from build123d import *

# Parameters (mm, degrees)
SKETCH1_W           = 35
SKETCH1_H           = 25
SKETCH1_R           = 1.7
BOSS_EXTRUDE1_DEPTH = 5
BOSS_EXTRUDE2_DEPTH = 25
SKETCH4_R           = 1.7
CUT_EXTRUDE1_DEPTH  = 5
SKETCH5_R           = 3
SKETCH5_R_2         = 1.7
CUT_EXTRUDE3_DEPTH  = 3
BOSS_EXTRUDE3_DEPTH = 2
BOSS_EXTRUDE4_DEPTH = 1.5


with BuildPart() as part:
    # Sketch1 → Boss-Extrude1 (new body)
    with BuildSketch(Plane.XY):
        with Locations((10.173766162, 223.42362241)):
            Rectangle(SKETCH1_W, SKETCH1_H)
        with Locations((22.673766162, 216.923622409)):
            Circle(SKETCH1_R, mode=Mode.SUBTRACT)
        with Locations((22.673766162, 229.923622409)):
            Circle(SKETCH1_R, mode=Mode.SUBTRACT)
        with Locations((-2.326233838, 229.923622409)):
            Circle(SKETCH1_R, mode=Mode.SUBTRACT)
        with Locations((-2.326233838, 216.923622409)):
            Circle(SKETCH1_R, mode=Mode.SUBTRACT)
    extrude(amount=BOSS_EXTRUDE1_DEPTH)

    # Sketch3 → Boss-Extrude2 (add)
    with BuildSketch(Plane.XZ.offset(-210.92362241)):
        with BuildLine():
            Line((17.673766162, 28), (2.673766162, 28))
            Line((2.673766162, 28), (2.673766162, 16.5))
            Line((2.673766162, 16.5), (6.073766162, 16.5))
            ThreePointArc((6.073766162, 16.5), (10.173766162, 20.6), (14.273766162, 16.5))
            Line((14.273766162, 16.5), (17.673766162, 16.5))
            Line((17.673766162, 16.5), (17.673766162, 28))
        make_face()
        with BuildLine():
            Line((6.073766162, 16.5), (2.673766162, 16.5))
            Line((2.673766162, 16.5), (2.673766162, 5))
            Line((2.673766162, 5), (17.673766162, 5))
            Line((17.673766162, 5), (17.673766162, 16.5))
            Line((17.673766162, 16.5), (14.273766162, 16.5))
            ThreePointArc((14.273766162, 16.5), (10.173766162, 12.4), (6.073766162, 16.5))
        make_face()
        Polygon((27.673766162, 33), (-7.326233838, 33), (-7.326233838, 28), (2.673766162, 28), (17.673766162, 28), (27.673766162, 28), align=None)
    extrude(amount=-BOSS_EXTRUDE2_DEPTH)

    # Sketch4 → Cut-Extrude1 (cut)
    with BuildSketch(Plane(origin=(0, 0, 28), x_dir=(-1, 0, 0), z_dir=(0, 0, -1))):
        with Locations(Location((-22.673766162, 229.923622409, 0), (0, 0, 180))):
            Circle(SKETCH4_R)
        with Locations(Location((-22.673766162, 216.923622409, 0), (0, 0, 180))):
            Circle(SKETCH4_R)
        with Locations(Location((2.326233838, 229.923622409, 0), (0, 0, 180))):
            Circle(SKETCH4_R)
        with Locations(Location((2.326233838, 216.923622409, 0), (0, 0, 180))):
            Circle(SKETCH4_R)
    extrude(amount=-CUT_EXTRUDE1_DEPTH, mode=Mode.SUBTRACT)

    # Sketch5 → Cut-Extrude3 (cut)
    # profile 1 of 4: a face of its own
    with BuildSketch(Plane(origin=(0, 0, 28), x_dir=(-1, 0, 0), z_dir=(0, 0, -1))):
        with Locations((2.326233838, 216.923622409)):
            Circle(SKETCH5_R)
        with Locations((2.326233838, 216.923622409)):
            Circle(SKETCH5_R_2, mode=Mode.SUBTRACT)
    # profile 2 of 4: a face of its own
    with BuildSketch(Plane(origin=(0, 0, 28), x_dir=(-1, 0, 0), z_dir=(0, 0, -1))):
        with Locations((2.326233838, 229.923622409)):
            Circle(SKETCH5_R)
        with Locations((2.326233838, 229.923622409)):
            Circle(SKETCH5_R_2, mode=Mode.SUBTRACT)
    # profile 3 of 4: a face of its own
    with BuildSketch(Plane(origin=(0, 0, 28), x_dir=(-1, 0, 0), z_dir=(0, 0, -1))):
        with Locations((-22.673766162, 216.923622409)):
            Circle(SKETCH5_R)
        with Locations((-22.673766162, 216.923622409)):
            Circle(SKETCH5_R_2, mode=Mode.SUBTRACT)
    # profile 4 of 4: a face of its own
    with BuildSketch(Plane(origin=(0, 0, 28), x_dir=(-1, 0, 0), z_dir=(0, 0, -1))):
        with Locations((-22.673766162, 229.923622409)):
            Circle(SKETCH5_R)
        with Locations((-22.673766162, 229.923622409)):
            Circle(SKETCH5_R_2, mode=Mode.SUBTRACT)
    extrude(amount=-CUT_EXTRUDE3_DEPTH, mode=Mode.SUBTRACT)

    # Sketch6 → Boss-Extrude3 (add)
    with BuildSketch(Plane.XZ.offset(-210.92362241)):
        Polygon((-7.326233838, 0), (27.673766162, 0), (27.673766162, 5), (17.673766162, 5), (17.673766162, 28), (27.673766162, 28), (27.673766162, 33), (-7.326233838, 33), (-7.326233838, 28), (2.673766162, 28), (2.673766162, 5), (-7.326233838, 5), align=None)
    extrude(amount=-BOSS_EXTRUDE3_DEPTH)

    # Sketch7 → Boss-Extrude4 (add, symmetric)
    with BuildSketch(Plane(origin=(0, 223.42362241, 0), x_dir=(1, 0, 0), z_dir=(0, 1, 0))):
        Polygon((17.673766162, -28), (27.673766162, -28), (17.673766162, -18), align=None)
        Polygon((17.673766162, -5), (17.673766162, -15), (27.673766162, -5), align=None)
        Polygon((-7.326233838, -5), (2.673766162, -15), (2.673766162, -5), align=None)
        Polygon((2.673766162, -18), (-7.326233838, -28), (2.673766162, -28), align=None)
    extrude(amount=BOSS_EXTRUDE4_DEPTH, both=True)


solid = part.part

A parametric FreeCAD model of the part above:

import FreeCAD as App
import Part
import Sketcher
from FreeCAD import Vector

doc = App.newDocument("Part")
body = doc.addObject("PartDesign::Body", "Body")

# Sketch on XY plane
sketch1 = body.newObject("Sketcher::SketchObject", "Sketch")
sketch1.AttachmentSupport = (doc.getObject("XY_Plane"), [""])
sketch1.MapMode = "FlatFace"
sketch1.addGeometry([
    Part.LineSegment(Vector(-7.3, 235.9, 0), Vector(-7.3, 210.9, 0)),  # 0
    Part.LineSegment(Vector(-7.3, 210.9, 0), Vector(27.7, 210.9, 0)),  # 1
    Part.LineSegment(Vector(27.7, 210.9, 0), Vector(27.7, 235.9, 0)),  # 2
    Part.LineSegment(Vector(27.7, 235.9, 0), Vector(-7.3, 235.9, 0)),  # 3
    Part.Circle(Vector(-2.3, 216.9, 0), Vector(0, 0, 1), 1.7),  # 4
    Part.Circle(Vector(22.7, 216.9, 0), Vector(0, 0, 1), 1.7),  # 5
    Part.Circle(Vector(-2.3, 229.9, 0), Vector(0, 0, 1), 1.7),  # 6
    Part.Circle(Vector(22.7, 229.9, 0), Vector(0, 0, 1), 1.7),  # 7
], False)
sketch1.addConstraint([
    Sketcher.Constraint("Coincident", 0, 2, 1, 1),
    Sketcher.Constraint("Coincident", 1, 2, 2, 1),
    Sketcher.Constraint("Coincident", 2, 2, 3, 1),
    Sketcher.Constraint("Coincident", 3, 2, 0, 1),
    Sketcher.Constraint("Vertical", 0),
    Sketcher.Constraint("Horizontal", 1),
    Sketcher.Constraint("Vertical", 2),
    Sketcher.Constraint("Horizontal", 3),
    Sketcher.Constraint("Equal", 4, 5),
    Sketcher.Constraint("Equal", 5, 6),
    Sketcher.Constraint("Equal", 6, 7),
    Sketcher.Constraint("Horizontal", 4, 3, 5, 3),
    Sketcher.Constraint("Horizontal", 6, 3, 7, 3),
    Sketcher.Constraint("Vertical", 4, 3, 6, 3),
    Sketcher.Constraint("Vertical", 5, 3, 7, 3),
    Sketcher.Constraint("Diameter", 4, 3.4),
    Sketcher.Constraint("DistanceX", 1, 1, 1, 2, 35.0),
    Sketcher.Constraint("DistanceY", 0, 2, 0, 1, 25.0),
    Sketcher.Constraint("DistanceX", 4, 3, 5, 3, 25.0),
    Sketcher.Constraint("DistanceY", 4, 3, 6, 3, 13.0),
    Sketcher.Constraint("DistanceX", 0, 2, 4, 3, 5.0),
    Sketcher.Constraint("DistanceY", 0, 2, 4, 3, 6.0),
    Sketcher.Constraint("DistanceX", 4, 3, -1, 1, 2.326234),
    Sketcher.Constraint("DistanceY", -1, 1, 4, 3, 216.923622),
])
pad1 = body.newObject("PartDesign::Pad", "Pad")
pad1.Profile = sketch1
pad1.Length = 5

# Sketch on XZ plane
sketch2 = body.newObject("Sketcher::SketchObject", "Sketch001")
sketch2.AttachmentSupport = (doc.getObject("XZ_Plane"), [""])
sketch2.MapMode = "FlatFace"
sketch2.AttachmentOffset = App.Placement(Vector(0, 0, -210.923622), App.Rotation())
sketch2.addGeometry([
    Part.LineSegment(Vector(2.7, 28, 0), Vector(2.7, 5, 0)),  # 0
    Part.LineSegment(Vector(2.7, 5, 0), Vector(17.7, 5, 0)),  # 1
    Part.LineSegment(Vector(17.7, 5, 0), Vector(17.7, 28, 0)),  # 2
    Part.LineSegment(Vector(17.7, 28, 0), Vector(27.7, 28, 0)),  # 3
    Part.LineSegment(Vector(27.7, 28, 0), Vector(27.7, 33, 0)),  # 4
    Part.LineSegment(Vector(27.7, 33, 0), Vector(-7.3, 33, 0)),  # 5
    Part.LineSegment(Vector(-7.3, 33, 0), Vector(-7.3, 28, 0)),  # 6
    Part.LineSegment(Vector(-7.3, 28, 0), Vector(2.7, 28, 0)),  # 7
    Part.Circle(Vector(10.2, 16.5, 0), Vector(0, 0, 1), 4.1),  # 8
], False)
sketch2.addConstraint([
    Sketcher.Constraint("Coincident", 0, 2, 1, 1),
    Sketcher.Constraint("Coincident", 1, 2, 2, 1),
    Sketcher.Constraint("Coincident", 2, 2, 3, 1),
    Sketcher.Constraint("Coincident", 3, 2, 4, 1),
    Sketcher.Constraint("Coincident", 4, 2, 5, 1),
    Sketcher.Constraint("Coincident", 5, 2, 6, 1),
    Sketcher.Constraint("Coincident", 6, 2, 7, 1),
    Sketcher.Constraint("Coincident", 7, 2, 0, 1),
    Sketcher.Constraint("Vertical", 0),
    Sketcher.Constraint("Horizontal", 1),
    Sketcher.Constraint("Vertical", 2),
    Sketcher.Constraint("Horizontal", 3),
    Sketcher.Constraint("Vertical", 4),
    Sketcher.Constraint("Horizontal", 5),
    Sketcher.Constraint("Vertical", 6),
    Sketcher.Constraint("Horizontal", 7),
    Sketcher.Constraint("Horizontal", 3, 2, 6, 2),
    Sketcher.Constraint("Equal", 3, 7),
    Sketcher.Constraint("Diameter", 8, 8.2),
    Sketcher.Constraint("DistanceX", 1, 1, 1, 2, 15.0),
    Sketcher.Constraint("DistanceX", 3, 1, 3, 2, 10.0),
    Sketcher.Constraint("DistanceY", 0, 2, 0, 1, 23.0),
    Sketcher.Constraint("DistanceY", 4, 1, 4, 2, 5.0),
    Sketcher.Constraint("DistanceY", -1, 1, 0, 2, 5.0),
    Sketcher.Constraint("DistanceY", -1, 1, 8, 3, 16.5),
    Sketcher.Constraint("DistanceX", 0, 2, 8, 3, 7.5),
    Sketcher.Constraint("DistanceX", -1, 1, 8, 3, 10.173766),
])
pad2 = body.newObject("PartDesign::Pad", "Pad001")
pad2.Profile = sketch2
pad2.Length = 25
pad2.Reversed = True

# Sketch on XY plane
sketch3 = body.newObject("Sketcher::SketchObject", "Sketch002")
sketch3.AttachmentSupport = (doc.getObject("XY_Plane"), [""])
sketch3.MapMode = "FlatFace"
sketch3.AttachmentOffset = App.Placement(Vector(0, 0, 28), App.Rotation())
sketch3.addGeometry([
    Part.Circle(Vector(22.7, 229.9, 0), Vector(0, 0, 1), 1.7),
    Part.Circle(Vector(22.7, 216.9, 0), Vector(0, 0, 1), 1.7),
    Part.Circle(Vector(-2.3, 229.9, 0), Vector(0, 0, 1), 1.7),
    Part.Circle(Vector(-2.3, 216.9, 0), Vector(0, 0, 1), 1.7),
], False)
sketch3.addConstraint([
    Sketcher.Constraint("Equal", 0, 1),
    Sketcher.Constraint("Equal", 1, 2),
    Sketcher.Constraint("Equal", 2, 3),
    Sketcher.Constraint("Horizontal", 0, 3, 2, 3),
    Sketcher.Constraint("Horizontal", 1, 3, 3, 3),
    Sketcher.Constraint("Vertical", 0, 3, 1, 3),
    Sketcher.Constraint("Vertical", 2, 3, 3, 3),
    Sketcher.Constraint("Diameter", 0, 3.4),
    Sketcher.Constraint("DistanceY", 1, 3, 0, 3, 13.0),
    Sketcher.Constraint("DistanceX", 2, 3, 0, 3, 25.0),
    Sketcher.Constraint("DistanceX", -1, 1, 0, 3, 22.673766),
    Sketcher.Constraint("DistanceY", -1, 1, 0, 3, 229.923622),
])
pocket1 = body.newObject("PartDesign::Pocket", "Pocket")
pocket1.Profile = sketch3
pocket1.Length = 5
pocket1.Reversed = True

# Sketch on XY plane
sketch4 = body.newObject("Sketcher::SketchObject", "Sketch003")
sketch4.AttachmentSupport = (doc.getObject("XY_Plane"), [""])
sketch4.MapMode = "FlatFace"
sketch4.AttachmentOffset = App.Placement(Vector(0, 0, 28), App.Rotation())
sketch4.addGeometry([
    Part.Circle(Vector(-2.3, 216.9, 0), Vector(0, 0, 1), 3),  # 0
    Part.Circle(Vector(-2.3, 216.9, 0), Vector(0, 0, 1), 1.7),  # 1
    Part.Circle(Vector(-2.3, 229.9, 0), Vector(0, 0, 1), 3),  # 2
    Part.Circle(Vector(-2.3, 229.9, 0), Vector(0, 0, 1), 1.7),  # 3
    Part.Circle(Vector(22.7, 216.9, 0), Vector(0, 0, 1), 3),  # 4
    Part.Circle(Vector(22.7, 216.9, 0), Vector(0, 0, 1), 1.7),  # 5
    Part.Circle(Vector(22.7, 229.9, 0), Vector(0, 0, 1), 3),  # 6
    Part.Circle(Vector(22.7, 229.9, 0), Vector(0, 0, 1), 1.7),  # 7
], False)
sketch4.addConstraint([
    Sketcher.Constraint("Coincident", 1, 3, 0, 3),
    Sketcher.Constraint("Coincident", 3, 3, 2, 3),
    Sketcher.Constraint("Coincident", 5, 3, 4, 3),
    Sketcher.Constraint("Coincident", 7, 3, 6, 3),
    Sketcher.Constraint("Equal", 0, 2),
    Sketcher.Constraint("Equal", 1, 3),
    Sketcher.Constraint("Equal", 2, 4),
    Sketcher.Constraint("Equal", 3, 5),
    Sketcher.Constraint("Equal", 4, 6),
    Sketcher.Constraint("Equal", 5, 7),
    Sketcher.Constraint("Horizontal", 1, 3, 4, 3),
    Sketcher.Constraint("Horizontal", 3, 3, 6, 3),
    Sketcher.Constraint("Vertical", 1, 3, 2, 3),
    Sketcher.Constraint("Vertical", 5, 3, 6, 3),
    Sketcher.Constraint("Diameter", 0, 6.0),
    Sketcher.Constraint("Diameter", 1, 3.4),
    Sketcher.Constraint("DistanceY", 0, 3, 2, 3, 13.0),
    Sketcher.Constraint("DistanceX", 0, 3, 4, 3, 25.0),
    Sketcher.Constraint("DistanceX", 0, 3, -1, 1, 2.326234),
    Sketcher.Constraint("DistanceY", -1, 1, 0, 3, 216.923622),
])
pocket2 = body.newObject("PartDesign::Pocket", "Pocket001")
pocket2.Profile = sketch4
pocket2.Length = 3
pocket2.Reversed = True

# Sketch on XZ plane
sketch5 = body.newObject("Sketcher::SketchObject", "Sketch004")
sketch5.AttachmentSupport = (doc.getObject("XZ_Plane"), [""])
sketch5.MapMode = "FlatFace"
sketch5.AttachmentOffset = App.Placement(Vector(0, 0, -210.923622), App.Rotation())
sketch5.addGeometry([
    Part.LineSegment(Vector(-7, 0, 0), Vector(28, 0, 0)),  # 0
    Part.LineSegment(Vector(28, 0, 0), Vector(28, 5, 0)),  # 1
    Part.LineSegment(Vector(28, 5, 0), Vector(18, 5, 0)),  # 2
    Part.LineSegment(Vector(18, 5, 0), Vector(18, 28, 0)),  # 3
    Part.LineSegment(Vector(18, 28, 0), Vector(28, 28, 0)),  # 4
    Part.LineSegment(Vector(28, 28, 0), Vector(28, 33, 0)),  # 5
    Part.LineSegment(Vector(28, 33, 0), Vector(-7, 33, 0)),  # 6
    Part.LineSegment(Vector(-7, 33, 0), Vector(-7, 28, 0)),  # 7
    Part.LineSegment(Vector(-7, 28, 0), Vector(3, 28, 0)),  # 8
    Part.LineSegment(Vector(3, 28, 0), Vector(3, 5, 0)),  # 9
    Part.LineSegment(Vector(3, 5, 0), Vector(-7, 5, 0)),  # 10
    Part.LineSegment(Vector(-7, 5, 0), Vector(-7, 0, 0)),  # 11
], False)
sketch5.addConstraint([
    Sketcher.Constraint("Coincident", 0, 2, 1, 1),
    Sketcher.Constraint("Coincident", 1, 2, 2, 1),
    Sketcher.Constraint("Coincident", 2, 2, 3, 1),
    Sketcher.Constraint("Coincident", 3, 2, 4, 1),
    Sketcher.Constraint("Coincident", 4, 2, 5, 1),
    Sketcher.Constraint("Coincident", 5, 2, 6, 1),
    Sketcher.Constraint("Coincident", 6, 2, 7, 1),
    Sketcher.Constraint("Coincident", 7, 2, 8, 1),
    Sketcher.Constraint("Coincident", 8, 2, 9, 1),
    Sketcher.Constraint("Coincident", 9, 2, 10, 1),
    Sketcher.Constraint("Coincident", 10, 2, 11, 1),
    Sketcher.Constraint("Coincident", 11, 2, 0, 1),
    Sketcher.Constraint("Horizontal", 0),
    Sketcher.Constraint("Vertical", 1),
    Sketcher.Constraint("Horizontal", 2),
    Sketcher.Constraint("Vertical", 3),
    Sketcher.Constraint("Horizontal", 4),
    Sketcher.Constraint("Vertical", 5),
    Sketcher.Constraint("Horizontal", 6),
    Sketcher.Constraint("Vertical", 7),
    Sketcher.Constraint("Horizontal", 8),
    Sketcher.Constraint("Vertical", 9),
    Sketcher.Constraint("Horizontal", 10),
    Sketcher.Constraint("Vertical", 11),
    Sketcher.Constraint("PointOnObject", 0, 2, -1),
    Sketcher.Constraint("Horizontal", 4, 2, 7, 2),
    Sketcher.Constraint("Horizontal", 2, 2, 9, 2),
    Sketcher.Constraint("Vertical", 1, 2, 4, 2),
    Sketcher.Constraint("Vertical", 7, 2, 10, 2),
    Sketcher.Constraint("Equal", 4, 8),
    Sketcher.Constraint("Equal", 1, 5),
    Sketcher.Constraint("DistanceX", 0, 1, 0, 2, 35.0),
    Sketcher.Constraint("DistanceX", 2, 2, 2, 1, 10.0),
    Sketcher.Constraint("DistanceY", 1, 1, 1, 2, 5.0),
    Sketcher.Constraint("DistanceY", 3, 1, 3, 2, 23.0),
    Sketcher.Constraint("DistanceX", -1, 1, 0, 2, 27.673766),
])
pad3 = body.newObject("PartDesign::Pad", "Pad002")
pad3.Profile = sketch5
pad3.Length = 2
pad3.Reversed = True

# Sketch on XZ plane
sketch6 = body.newObject("Sketcher::SketchObject", "Sketch005")
sketch6.AttachmentSupport = (doc.getObject("XZ_Plane"), [""])
sketch6.MapMode = "FlatFace"
sketch6.AttachmentOffset = App.Placement(Vector(0, 0, -223.423622), App.Rotation())
sketch6.addGeometry([
    Part.LineSegment(Vector(18, 28, 0), Vector(28, 28, 0)),  # 0
    Part.LineSegment(Vector(28, 28, 0), Vector(18, 18, 0)),  # 1
    Part.LineSegment(Vector(18, 18, 0), Vector(18, 28, 0)),  # 2
    Part.LineSegment(Vector(18, 5, 0), Vector(18, 15, 0)),  # 3
    Part.LineSegment(Vector(18, 15, 0), Vector(28, 5, 0)),  # 4
    Part.LineSegment(Vector(28, 5, 0), Vector(18, 5, 0)),  # 5
    Part.LineSegment(Vector(-7, 5, 0), Vector(3, 15, 0)),  # 6
    Part.LineSegment(Vector(3, 15, 0), Vector(3, 5, 0)),  # 7
    Part.LineSegment(Vector(3, 5, 0), Vector(-7, 5, 0)),  # 8
    Part.LineSegment(Vector(3, 18, 0), Vector(-7, 28, 0)),  # 9
    Part.LineSegment(Vector(-7, 28, 0), Vector(3, 28, 0)),  # 10
    Part.LineSegment(Vector(3, 28, 0), Vector(3, 18, 0)),  # 11
], False)
sketch6.addConstraint([
    Sketcher.Constraint("Coincident", 0, 2, 1, 1),
    Sketcher.Constraint("Coincident", 1, 2, 2, 1),
    Sketcher.Constraint("Coincident", 2, 2, 0, 1),
    Sketcher.Constraint("Coincident", 3, 2, 4, 1),
    Sketcher.Constraint("Coincident", 4, 2, 5, 1),
    Sketcher.Constraint("Coincident", 5, 2, 3, 1),
    Sketcher.Constraint("Coincident", 6, 2, 7, 1),
    Sketcher.Constraint("Coincident", 7, 2, 8, 1),
    Sketcher.Constraint("Coincident", 8, 2, 6, 1),
    Sketcher.Constraint("Coincident", 9, 2, 10, 1),
    Sketcher.Constraint("Coincident", 10, 2, 11, 1),
    Sketcher.Constraint("Coincident", 11, 2, 9, 1),
    Sketcher.Constraint("Horizontal", 0),
    Sketcher.Constraint("Vertical", 2),
    Sketcher.Constraint("Vertical", 3),
    Sketcher.Constraint("Horizontal", 5),
    Sketcher.Constraint("Vertical", 7),
    Sketcher.Constraint("Horizontal", 8),
    Sketcher.Constraint("Horizontal", 10),
    Sketcher.Constraint("Vertical", 11),
    Sketcher.Constraint("Perpendicular", 1, 4),
    Sketcher.Constraint("Perpendicular", 4, 6),
    Sketcher.Constraint("Perpendicular", 6, 9),
    Sketcher.Constraint("Horizontal", 3, 2, 6, 2),
    Sketcher.Constraint("Horizontal", 5, 2, 7, 2),
    Sketcher.Constraint("Horizontal", 2, 2, 9, 2),
    Sketcher.Constraint("Horizontal", 1, 2, 11, 2),
    Sketcher.Constraint("Vertical", 2, 2, 3, 2),
    Sketcher.Constraint("Vertical", 0, 2, 4, 2),
    Sketcher.Constraint("Vertical", 8, 2, 9, 2),
    Sketcher.Constraint("Vertical", 7, 2, 10, 2),
    Sketcher.Constraint("DistanceX", 0, 1, 0, 2, 10.0),
    Sketcher.Constraint("DistanceY", -1, 1, 0, 2, 28.0),
    Sketcher.Constraint("DistanceY", -1, 1, 3, 2, 15.0),
    Sketcher.Constraint("DistanceX", 6, 2, 3, 2, 15.0),
    Sketcher.Constraint("DistanceX", -1, 1, 0, 2, 27.673766),
])
pad4 = body.newObject("PartDesign::Pad", "Pad003")
pad4.Profile = sketch6
pad4.Length = 3
pad4.Midplane = True

doc.recompute()
